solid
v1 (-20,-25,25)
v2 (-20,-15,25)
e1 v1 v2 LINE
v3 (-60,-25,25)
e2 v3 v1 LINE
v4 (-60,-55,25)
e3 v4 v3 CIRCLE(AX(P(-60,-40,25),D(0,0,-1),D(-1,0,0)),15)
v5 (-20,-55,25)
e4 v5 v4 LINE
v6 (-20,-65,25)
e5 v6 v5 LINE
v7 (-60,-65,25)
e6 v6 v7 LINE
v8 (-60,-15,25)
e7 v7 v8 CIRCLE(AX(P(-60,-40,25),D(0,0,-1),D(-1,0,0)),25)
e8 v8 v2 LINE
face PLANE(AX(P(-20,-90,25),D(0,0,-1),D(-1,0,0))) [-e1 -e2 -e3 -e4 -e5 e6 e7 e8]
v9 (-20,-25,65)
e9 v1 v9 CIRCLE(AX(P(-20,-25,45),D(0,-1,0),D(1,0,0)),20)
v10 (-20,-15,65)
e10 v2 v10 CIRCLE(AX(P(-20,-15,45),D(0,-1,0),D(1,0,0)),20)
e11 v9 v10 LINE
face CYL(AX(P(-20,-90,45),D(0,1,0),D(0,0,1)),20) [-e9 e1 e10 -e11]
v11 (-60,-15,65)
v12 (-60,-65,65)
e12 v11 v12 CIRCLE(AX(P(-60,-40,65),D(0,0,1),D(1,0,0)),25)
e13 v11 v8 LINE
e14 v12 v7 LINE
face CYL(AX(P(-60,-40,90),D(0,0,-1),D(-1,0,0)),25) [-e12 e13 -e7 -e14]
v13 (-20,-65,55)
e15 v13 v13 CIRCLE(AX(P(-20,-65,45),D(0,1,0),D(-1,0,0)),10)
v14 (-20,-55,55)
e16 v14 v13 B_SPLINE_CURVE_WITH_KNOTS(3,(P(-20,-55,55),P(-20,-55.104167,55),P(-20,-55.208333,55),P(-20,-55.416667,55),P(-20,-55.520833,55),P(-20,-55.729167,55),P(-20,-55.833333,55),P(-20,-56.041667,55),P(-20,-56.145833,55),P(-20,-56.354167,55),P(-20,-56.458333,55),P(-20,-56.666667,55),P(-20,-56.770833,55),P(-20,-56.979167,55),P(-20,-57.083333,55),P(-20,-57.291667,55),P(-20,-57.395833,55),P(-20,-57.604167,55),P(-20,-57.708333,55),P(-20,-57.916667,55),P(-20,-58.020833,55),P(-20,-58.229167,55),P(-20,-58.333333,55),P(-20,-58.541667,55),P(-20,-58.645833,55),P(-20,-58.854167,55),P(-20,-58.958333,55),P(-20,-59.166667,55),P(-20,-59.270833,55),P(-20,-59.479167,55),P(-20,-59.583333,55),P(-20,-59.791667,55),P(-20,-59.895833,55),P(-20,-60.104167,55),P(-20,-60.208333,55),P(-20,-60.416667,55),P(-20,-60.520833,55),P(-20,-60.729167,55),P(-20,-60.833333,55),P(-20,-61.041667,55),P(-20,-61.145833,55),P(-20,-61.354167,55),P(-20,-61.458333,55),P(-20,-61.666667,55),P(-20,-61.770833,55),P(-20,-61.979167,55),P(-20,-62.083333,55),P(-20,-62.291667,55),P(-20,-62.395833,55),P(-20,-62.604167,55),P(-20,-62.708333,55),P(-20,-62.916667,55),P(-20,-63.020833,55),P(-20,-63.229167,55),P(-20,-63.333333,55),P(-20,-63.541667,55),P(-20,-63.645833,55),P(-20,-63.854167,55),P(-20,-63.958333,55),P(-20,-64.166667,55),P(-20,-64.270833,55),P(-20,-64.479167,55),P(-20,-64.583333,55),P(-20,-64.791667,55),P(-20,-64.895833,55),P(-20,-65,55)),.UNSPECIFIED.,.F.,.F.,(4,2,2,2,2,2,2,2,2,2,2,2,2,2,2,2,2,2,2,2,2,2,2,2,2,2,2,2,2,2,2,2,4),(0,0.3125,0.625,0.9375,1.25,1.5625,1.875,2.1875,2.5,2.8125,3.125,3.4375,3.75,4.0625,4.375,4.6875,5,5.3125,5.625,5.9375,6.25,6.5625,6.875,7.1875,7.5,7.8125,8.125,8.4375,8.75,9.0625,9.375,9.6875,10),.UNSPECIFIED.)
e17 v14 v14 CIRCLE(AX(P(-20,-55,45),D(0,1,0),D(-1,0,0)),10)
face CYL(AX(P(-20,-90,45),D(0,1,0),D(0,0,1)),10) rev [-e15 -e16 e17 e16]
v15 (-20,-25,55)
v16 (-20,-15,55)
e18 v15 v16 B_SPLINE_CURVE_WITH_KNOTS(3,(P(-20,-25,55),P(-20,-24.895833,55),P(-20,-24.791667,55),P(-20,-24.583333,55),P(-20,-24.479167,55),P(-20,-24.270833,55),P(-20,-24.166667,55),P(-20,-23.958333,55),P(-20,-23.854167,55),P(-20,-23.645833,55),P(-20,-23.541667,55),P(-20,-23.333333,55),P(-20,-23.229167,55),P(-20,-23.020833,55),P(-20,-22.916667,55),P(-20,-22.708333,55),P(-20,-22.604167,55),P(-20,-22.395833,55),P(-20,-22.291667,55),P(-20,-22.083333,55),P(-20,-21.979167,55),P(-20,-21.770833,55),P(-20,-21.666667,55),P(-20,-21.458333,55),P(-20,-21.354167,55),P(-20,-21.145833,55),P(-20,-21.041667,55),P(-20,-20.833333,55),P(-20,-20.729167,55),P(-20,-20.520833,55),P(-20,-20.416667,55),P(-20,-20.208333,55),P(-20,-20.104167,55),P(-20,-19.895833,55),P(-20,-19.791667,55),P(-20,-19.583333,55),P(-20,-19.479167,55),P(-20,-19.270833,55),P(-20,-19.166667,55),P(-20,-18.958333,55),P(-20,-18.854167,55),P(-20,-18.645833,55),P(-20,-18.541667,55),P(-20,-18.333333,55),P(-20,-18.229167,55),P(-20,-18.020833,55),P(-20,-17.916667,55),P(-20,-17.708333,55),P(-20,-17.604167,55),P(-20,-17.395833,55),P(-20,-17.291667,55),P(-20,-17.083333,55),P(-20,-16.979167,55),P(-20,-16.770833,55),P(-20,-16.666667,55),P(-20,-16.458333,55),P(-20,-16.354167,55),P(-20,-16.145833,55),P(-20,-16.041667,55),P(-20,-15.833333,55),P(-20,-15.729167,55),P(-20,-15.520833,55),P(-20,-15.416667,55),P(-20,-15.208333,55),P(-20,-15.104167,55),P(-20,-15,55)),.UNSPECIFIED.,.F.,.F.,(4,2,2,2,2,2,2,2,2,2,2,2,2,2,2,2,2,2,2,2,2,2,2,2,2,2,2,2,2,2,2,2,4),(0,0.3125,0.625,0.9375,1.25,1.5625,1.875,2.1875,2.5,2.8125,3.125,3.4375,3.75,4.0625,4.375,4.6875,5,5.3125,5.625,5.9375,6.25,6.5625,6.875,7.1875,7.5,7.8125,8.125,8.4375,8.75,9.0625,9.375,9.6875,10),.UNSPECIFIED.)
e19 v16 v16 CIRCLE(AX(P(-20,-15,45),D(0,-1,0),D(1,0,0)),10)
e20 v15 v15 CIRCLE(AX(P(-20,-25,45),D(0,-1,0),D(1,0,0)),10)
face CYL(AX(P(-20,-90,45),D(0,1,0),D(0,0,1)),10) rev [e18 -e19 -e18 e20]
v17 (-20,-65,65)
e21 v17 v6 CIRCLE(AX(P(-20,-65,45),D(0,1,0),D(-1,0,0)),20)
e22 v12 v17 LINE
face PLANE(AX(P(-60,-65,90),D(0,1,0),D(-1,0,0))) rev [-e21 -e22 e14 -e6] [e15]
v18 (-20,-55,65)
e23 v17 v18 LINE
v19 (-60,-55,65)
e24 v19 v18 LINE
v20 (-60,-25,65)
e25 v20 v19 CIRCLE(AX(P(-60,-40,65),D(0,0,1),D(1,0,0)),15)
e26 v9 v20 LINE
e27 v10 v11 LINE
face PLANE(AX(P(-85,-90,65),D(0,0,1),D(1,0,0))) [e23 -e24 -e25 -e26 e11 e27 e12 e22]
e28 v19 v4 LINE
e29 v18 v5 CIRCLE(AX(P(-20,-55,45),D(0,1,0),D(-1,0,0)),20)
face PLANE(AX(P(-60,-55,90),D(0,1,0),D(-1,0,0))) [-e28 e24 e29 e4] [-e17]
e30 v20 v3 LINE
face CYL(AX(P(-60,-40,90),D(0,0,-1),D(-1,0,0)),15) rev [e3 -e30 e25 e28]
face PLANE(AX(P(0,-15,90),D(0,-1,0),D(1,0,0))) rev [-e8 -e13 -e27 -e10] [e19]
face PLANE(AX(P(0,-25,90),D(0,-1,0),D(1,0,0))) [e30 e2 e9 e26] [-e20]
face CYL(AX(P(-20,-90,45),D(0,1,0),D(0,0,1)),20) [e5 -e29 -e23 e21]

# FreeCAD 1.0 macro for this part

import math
import FreeCAD as App
import Part
import Sketcher

doc = App.newDocument("Part")
body = doc.addObject("PartDesign::Body", "Body")

# Sketch on XY plane
sketch1 = doc.addObject("Sketcher::SketchObject", "Sketch")
body.addObject(sketch1)
sketch1.AttachmentSupport = (doc.XY_Plane, [""])
sketch1.MapMode = "FlatFace"
sketch1.addGeometry(Part.LineSegment(App.Vector(0, -15, 0), App.Vector(-60, -15, 0)), False)
sketch1.addGeometry(Part.ArcOfCircle(Part.Circle(App.Vector(-60, -40, 0), App.Vector(0, 0, 1), 25), math.radians(90), math.radians(270)), False)
sketch1.addGeometry(Part.LineSegment(App.Vector(-60, -65, 0), App.Vector(0, -65, 0)), False)
sketch1.addGeometry(Part.LineSegment(App.Vector(0, -65, 0), App.Vector(0, -55, 0)), False)
sketch1.addGeometry(Part.LineSegment(App.Vector(0, -55, 0), App.Vector(-60, -55, 0)), False)
sketch1.addGeometry(Part.ArcOfCircle(Part.Circle(App.Vector(-60, -40, 0), App.Vector(0, 0, 1), 15), math.radians(90), math.radians(270)), False)
sketch1.addGeometry(Part.LineSegment(App.Vector(-60, -25, 0), App.Vector(0, -25, 0)), False)
sketch1.addGeometry(Part.LineSegment(App.Vector(0, -25, 0), App.Vector(0, -15, 0)), False)
sketch1.addConstraint(Sketcher.Constraint("Tangent", 0, 2, 1, 1))
sketch1.addConstraint(Sketcher.Constraint("Tangent", 1, 2, 2, 1))
sketch1.addConstraint(Sketcher.Constraint("Coincident", 2, 2, 3, 1))
sketch1.addConstraint(Sketcher.Constraint("Coincident", 3, 2, 4, 1))
sketch1.addConstraint(Sketcher.Constraint("Tangent", 4, 2, 5, 2))
sketch1.addConstraint(Sketcher.Constraint("Tangent", 5, 1, 6, 1))
sketch1.addConstraint(Sketcher.Constraint("Coincident", 6, 2, 7, 1))
sketch1.addConstraint(Sketcher.Constraint("Coincident", 7, 2, 0, 1))
sketch1.addConstraint(Sketcher.Constraint("Horizontal", 0))
sketch1.addConstraint(Sketcher.Constraint("Horizontal", 2))
sketch1.addConstraint(Sketcher.Constraint("Vertical", 3))
sketch1.addConstraint(Sketcher.Constraint("Horizontal", 4))
sketch1.addConstraint(Sketcher.Constraint("Horizontal", 6))
sketch1.addConstraint(Sketcher.Constraint("Vertical", 7))
sketch1.addConstraint(Sketcher.Constraint("Coincident", 5, 3, 1, 3))
sketch1.addConstraint(Sketcher.Constraint("PointOnObject", 2, 2, -2))
sketch1.addConstraint(Sketcher.Constraint("PointOnObject", 6, 2, -2))
sketch1.addConstraint(Sketcher.Constraint("Radius", 1, 25.0))
sketch1.addConstraint(Sketcher.Constraint("Radius", 5, 15.0))
sketch1.addConstraint(Sketcher.Constraint("DistanceX", 0, 2, 0, 1, 60.0))
sketch1.addConstraint(Sketcher.Constraint("DistanceY", 1, 3, -1, 1, 40.0))
pad1 = doc.addObject("PartDesign::Pad", "Pad")
body.addObject(pad1)
pad1.Profile = sketch1
pad1.Length = 90
body2 = doc.addObject("PartDesign::Body", "Body001")

# Sketch on XZ plane
sketch2 = doc.addObject("Sketcher::SketchObject", "Sketch001")
body2.addObject(sketch2)
sketch2.AttachmentSupport = (doc.getObject("XZ_Plane001"), [""])
sketch2.MapMode = "FlatFace"
sketch2.addGeometry(Part.LineSegment(App.Vector(-85, 25, 0), App.Vector(-85, 65, 0)), False)
sketch2.addGeometry(Part.LineSegment(App.Vector(-85, 65, 0), App.Vector(-20, 65, 0)), False)
sketch2.addGeometry(Part.ArcOfCircle(Part.Circle(App.Vector(-20, 45, 0), App.Vector(0, 0, 1), 20), math.radians(-90), math.radians(90)), False)
sketch2.addGeometry(Part.LineSegment(App.Vector(-20, 25, 0), App.Vector(-85, 25, 0)), False)
sketch2.addGeometry(Part.Circle(App.Vector(-20, 45, 0), App.Vector(0, 0, 1), 10), False)
sketch2.addConstraint(Sketcher.Constraint("Coincident", 0, 2, 1, 1))
sketch2.addConstraint(Sketcher.Constraint("Tangent", 1, 2, 2, 2))
sketch2.addConstraint(Sketcher.Constraint("Tangent", 2, 1, 3, 1))
sketch2.addConstraint(Sketcher.Constraint("Coincident", 3, 2, 0, 1))
sketch2.addConstraint(Sketcher.Constraint("Vertical", 0))
sketch2.addConstraint(Sketcher.Constraint("Horizontal", 1))
sketch2.addConstraint(Sketcher.Constraint("Horizontal", 3))
sketch2.addConstraint(Sketcher.Constraint("Coincident", 4, 3, 2, 3))
sketch2.addConstraint(Sketcher.Constraint("Diameter", 4, 20.0))
sketch2.addConstraint(Sketcher.Constraint("Radius", 2, 20.0))
sketch2.addConstraint(Sketcher.Constraint("DistanceX", 1, 1, 1, 2, 65.0))
sketch2.addConstraint(Sketcher.Constraint("DistanceX", 2, 3, -1, 1, 20.0))
sketch2.addConstraint(Sketcher.Constraint("DistanceY", -1, 1, 2, 3, 45.0))
pad2 = doc.addObject("PartDesign::Pad", "Pad001")
body2.addObject(pad2)
pad2.Profile = sketch2
pad2.Length = 90
doc.recompute()

boolean = doc.addObject("PartDesign::Boolean", "Boolean")
body.addObject(boolean)
boolean.Type = "Common"
boolean.addObjects([body2])

doc.recompute()
